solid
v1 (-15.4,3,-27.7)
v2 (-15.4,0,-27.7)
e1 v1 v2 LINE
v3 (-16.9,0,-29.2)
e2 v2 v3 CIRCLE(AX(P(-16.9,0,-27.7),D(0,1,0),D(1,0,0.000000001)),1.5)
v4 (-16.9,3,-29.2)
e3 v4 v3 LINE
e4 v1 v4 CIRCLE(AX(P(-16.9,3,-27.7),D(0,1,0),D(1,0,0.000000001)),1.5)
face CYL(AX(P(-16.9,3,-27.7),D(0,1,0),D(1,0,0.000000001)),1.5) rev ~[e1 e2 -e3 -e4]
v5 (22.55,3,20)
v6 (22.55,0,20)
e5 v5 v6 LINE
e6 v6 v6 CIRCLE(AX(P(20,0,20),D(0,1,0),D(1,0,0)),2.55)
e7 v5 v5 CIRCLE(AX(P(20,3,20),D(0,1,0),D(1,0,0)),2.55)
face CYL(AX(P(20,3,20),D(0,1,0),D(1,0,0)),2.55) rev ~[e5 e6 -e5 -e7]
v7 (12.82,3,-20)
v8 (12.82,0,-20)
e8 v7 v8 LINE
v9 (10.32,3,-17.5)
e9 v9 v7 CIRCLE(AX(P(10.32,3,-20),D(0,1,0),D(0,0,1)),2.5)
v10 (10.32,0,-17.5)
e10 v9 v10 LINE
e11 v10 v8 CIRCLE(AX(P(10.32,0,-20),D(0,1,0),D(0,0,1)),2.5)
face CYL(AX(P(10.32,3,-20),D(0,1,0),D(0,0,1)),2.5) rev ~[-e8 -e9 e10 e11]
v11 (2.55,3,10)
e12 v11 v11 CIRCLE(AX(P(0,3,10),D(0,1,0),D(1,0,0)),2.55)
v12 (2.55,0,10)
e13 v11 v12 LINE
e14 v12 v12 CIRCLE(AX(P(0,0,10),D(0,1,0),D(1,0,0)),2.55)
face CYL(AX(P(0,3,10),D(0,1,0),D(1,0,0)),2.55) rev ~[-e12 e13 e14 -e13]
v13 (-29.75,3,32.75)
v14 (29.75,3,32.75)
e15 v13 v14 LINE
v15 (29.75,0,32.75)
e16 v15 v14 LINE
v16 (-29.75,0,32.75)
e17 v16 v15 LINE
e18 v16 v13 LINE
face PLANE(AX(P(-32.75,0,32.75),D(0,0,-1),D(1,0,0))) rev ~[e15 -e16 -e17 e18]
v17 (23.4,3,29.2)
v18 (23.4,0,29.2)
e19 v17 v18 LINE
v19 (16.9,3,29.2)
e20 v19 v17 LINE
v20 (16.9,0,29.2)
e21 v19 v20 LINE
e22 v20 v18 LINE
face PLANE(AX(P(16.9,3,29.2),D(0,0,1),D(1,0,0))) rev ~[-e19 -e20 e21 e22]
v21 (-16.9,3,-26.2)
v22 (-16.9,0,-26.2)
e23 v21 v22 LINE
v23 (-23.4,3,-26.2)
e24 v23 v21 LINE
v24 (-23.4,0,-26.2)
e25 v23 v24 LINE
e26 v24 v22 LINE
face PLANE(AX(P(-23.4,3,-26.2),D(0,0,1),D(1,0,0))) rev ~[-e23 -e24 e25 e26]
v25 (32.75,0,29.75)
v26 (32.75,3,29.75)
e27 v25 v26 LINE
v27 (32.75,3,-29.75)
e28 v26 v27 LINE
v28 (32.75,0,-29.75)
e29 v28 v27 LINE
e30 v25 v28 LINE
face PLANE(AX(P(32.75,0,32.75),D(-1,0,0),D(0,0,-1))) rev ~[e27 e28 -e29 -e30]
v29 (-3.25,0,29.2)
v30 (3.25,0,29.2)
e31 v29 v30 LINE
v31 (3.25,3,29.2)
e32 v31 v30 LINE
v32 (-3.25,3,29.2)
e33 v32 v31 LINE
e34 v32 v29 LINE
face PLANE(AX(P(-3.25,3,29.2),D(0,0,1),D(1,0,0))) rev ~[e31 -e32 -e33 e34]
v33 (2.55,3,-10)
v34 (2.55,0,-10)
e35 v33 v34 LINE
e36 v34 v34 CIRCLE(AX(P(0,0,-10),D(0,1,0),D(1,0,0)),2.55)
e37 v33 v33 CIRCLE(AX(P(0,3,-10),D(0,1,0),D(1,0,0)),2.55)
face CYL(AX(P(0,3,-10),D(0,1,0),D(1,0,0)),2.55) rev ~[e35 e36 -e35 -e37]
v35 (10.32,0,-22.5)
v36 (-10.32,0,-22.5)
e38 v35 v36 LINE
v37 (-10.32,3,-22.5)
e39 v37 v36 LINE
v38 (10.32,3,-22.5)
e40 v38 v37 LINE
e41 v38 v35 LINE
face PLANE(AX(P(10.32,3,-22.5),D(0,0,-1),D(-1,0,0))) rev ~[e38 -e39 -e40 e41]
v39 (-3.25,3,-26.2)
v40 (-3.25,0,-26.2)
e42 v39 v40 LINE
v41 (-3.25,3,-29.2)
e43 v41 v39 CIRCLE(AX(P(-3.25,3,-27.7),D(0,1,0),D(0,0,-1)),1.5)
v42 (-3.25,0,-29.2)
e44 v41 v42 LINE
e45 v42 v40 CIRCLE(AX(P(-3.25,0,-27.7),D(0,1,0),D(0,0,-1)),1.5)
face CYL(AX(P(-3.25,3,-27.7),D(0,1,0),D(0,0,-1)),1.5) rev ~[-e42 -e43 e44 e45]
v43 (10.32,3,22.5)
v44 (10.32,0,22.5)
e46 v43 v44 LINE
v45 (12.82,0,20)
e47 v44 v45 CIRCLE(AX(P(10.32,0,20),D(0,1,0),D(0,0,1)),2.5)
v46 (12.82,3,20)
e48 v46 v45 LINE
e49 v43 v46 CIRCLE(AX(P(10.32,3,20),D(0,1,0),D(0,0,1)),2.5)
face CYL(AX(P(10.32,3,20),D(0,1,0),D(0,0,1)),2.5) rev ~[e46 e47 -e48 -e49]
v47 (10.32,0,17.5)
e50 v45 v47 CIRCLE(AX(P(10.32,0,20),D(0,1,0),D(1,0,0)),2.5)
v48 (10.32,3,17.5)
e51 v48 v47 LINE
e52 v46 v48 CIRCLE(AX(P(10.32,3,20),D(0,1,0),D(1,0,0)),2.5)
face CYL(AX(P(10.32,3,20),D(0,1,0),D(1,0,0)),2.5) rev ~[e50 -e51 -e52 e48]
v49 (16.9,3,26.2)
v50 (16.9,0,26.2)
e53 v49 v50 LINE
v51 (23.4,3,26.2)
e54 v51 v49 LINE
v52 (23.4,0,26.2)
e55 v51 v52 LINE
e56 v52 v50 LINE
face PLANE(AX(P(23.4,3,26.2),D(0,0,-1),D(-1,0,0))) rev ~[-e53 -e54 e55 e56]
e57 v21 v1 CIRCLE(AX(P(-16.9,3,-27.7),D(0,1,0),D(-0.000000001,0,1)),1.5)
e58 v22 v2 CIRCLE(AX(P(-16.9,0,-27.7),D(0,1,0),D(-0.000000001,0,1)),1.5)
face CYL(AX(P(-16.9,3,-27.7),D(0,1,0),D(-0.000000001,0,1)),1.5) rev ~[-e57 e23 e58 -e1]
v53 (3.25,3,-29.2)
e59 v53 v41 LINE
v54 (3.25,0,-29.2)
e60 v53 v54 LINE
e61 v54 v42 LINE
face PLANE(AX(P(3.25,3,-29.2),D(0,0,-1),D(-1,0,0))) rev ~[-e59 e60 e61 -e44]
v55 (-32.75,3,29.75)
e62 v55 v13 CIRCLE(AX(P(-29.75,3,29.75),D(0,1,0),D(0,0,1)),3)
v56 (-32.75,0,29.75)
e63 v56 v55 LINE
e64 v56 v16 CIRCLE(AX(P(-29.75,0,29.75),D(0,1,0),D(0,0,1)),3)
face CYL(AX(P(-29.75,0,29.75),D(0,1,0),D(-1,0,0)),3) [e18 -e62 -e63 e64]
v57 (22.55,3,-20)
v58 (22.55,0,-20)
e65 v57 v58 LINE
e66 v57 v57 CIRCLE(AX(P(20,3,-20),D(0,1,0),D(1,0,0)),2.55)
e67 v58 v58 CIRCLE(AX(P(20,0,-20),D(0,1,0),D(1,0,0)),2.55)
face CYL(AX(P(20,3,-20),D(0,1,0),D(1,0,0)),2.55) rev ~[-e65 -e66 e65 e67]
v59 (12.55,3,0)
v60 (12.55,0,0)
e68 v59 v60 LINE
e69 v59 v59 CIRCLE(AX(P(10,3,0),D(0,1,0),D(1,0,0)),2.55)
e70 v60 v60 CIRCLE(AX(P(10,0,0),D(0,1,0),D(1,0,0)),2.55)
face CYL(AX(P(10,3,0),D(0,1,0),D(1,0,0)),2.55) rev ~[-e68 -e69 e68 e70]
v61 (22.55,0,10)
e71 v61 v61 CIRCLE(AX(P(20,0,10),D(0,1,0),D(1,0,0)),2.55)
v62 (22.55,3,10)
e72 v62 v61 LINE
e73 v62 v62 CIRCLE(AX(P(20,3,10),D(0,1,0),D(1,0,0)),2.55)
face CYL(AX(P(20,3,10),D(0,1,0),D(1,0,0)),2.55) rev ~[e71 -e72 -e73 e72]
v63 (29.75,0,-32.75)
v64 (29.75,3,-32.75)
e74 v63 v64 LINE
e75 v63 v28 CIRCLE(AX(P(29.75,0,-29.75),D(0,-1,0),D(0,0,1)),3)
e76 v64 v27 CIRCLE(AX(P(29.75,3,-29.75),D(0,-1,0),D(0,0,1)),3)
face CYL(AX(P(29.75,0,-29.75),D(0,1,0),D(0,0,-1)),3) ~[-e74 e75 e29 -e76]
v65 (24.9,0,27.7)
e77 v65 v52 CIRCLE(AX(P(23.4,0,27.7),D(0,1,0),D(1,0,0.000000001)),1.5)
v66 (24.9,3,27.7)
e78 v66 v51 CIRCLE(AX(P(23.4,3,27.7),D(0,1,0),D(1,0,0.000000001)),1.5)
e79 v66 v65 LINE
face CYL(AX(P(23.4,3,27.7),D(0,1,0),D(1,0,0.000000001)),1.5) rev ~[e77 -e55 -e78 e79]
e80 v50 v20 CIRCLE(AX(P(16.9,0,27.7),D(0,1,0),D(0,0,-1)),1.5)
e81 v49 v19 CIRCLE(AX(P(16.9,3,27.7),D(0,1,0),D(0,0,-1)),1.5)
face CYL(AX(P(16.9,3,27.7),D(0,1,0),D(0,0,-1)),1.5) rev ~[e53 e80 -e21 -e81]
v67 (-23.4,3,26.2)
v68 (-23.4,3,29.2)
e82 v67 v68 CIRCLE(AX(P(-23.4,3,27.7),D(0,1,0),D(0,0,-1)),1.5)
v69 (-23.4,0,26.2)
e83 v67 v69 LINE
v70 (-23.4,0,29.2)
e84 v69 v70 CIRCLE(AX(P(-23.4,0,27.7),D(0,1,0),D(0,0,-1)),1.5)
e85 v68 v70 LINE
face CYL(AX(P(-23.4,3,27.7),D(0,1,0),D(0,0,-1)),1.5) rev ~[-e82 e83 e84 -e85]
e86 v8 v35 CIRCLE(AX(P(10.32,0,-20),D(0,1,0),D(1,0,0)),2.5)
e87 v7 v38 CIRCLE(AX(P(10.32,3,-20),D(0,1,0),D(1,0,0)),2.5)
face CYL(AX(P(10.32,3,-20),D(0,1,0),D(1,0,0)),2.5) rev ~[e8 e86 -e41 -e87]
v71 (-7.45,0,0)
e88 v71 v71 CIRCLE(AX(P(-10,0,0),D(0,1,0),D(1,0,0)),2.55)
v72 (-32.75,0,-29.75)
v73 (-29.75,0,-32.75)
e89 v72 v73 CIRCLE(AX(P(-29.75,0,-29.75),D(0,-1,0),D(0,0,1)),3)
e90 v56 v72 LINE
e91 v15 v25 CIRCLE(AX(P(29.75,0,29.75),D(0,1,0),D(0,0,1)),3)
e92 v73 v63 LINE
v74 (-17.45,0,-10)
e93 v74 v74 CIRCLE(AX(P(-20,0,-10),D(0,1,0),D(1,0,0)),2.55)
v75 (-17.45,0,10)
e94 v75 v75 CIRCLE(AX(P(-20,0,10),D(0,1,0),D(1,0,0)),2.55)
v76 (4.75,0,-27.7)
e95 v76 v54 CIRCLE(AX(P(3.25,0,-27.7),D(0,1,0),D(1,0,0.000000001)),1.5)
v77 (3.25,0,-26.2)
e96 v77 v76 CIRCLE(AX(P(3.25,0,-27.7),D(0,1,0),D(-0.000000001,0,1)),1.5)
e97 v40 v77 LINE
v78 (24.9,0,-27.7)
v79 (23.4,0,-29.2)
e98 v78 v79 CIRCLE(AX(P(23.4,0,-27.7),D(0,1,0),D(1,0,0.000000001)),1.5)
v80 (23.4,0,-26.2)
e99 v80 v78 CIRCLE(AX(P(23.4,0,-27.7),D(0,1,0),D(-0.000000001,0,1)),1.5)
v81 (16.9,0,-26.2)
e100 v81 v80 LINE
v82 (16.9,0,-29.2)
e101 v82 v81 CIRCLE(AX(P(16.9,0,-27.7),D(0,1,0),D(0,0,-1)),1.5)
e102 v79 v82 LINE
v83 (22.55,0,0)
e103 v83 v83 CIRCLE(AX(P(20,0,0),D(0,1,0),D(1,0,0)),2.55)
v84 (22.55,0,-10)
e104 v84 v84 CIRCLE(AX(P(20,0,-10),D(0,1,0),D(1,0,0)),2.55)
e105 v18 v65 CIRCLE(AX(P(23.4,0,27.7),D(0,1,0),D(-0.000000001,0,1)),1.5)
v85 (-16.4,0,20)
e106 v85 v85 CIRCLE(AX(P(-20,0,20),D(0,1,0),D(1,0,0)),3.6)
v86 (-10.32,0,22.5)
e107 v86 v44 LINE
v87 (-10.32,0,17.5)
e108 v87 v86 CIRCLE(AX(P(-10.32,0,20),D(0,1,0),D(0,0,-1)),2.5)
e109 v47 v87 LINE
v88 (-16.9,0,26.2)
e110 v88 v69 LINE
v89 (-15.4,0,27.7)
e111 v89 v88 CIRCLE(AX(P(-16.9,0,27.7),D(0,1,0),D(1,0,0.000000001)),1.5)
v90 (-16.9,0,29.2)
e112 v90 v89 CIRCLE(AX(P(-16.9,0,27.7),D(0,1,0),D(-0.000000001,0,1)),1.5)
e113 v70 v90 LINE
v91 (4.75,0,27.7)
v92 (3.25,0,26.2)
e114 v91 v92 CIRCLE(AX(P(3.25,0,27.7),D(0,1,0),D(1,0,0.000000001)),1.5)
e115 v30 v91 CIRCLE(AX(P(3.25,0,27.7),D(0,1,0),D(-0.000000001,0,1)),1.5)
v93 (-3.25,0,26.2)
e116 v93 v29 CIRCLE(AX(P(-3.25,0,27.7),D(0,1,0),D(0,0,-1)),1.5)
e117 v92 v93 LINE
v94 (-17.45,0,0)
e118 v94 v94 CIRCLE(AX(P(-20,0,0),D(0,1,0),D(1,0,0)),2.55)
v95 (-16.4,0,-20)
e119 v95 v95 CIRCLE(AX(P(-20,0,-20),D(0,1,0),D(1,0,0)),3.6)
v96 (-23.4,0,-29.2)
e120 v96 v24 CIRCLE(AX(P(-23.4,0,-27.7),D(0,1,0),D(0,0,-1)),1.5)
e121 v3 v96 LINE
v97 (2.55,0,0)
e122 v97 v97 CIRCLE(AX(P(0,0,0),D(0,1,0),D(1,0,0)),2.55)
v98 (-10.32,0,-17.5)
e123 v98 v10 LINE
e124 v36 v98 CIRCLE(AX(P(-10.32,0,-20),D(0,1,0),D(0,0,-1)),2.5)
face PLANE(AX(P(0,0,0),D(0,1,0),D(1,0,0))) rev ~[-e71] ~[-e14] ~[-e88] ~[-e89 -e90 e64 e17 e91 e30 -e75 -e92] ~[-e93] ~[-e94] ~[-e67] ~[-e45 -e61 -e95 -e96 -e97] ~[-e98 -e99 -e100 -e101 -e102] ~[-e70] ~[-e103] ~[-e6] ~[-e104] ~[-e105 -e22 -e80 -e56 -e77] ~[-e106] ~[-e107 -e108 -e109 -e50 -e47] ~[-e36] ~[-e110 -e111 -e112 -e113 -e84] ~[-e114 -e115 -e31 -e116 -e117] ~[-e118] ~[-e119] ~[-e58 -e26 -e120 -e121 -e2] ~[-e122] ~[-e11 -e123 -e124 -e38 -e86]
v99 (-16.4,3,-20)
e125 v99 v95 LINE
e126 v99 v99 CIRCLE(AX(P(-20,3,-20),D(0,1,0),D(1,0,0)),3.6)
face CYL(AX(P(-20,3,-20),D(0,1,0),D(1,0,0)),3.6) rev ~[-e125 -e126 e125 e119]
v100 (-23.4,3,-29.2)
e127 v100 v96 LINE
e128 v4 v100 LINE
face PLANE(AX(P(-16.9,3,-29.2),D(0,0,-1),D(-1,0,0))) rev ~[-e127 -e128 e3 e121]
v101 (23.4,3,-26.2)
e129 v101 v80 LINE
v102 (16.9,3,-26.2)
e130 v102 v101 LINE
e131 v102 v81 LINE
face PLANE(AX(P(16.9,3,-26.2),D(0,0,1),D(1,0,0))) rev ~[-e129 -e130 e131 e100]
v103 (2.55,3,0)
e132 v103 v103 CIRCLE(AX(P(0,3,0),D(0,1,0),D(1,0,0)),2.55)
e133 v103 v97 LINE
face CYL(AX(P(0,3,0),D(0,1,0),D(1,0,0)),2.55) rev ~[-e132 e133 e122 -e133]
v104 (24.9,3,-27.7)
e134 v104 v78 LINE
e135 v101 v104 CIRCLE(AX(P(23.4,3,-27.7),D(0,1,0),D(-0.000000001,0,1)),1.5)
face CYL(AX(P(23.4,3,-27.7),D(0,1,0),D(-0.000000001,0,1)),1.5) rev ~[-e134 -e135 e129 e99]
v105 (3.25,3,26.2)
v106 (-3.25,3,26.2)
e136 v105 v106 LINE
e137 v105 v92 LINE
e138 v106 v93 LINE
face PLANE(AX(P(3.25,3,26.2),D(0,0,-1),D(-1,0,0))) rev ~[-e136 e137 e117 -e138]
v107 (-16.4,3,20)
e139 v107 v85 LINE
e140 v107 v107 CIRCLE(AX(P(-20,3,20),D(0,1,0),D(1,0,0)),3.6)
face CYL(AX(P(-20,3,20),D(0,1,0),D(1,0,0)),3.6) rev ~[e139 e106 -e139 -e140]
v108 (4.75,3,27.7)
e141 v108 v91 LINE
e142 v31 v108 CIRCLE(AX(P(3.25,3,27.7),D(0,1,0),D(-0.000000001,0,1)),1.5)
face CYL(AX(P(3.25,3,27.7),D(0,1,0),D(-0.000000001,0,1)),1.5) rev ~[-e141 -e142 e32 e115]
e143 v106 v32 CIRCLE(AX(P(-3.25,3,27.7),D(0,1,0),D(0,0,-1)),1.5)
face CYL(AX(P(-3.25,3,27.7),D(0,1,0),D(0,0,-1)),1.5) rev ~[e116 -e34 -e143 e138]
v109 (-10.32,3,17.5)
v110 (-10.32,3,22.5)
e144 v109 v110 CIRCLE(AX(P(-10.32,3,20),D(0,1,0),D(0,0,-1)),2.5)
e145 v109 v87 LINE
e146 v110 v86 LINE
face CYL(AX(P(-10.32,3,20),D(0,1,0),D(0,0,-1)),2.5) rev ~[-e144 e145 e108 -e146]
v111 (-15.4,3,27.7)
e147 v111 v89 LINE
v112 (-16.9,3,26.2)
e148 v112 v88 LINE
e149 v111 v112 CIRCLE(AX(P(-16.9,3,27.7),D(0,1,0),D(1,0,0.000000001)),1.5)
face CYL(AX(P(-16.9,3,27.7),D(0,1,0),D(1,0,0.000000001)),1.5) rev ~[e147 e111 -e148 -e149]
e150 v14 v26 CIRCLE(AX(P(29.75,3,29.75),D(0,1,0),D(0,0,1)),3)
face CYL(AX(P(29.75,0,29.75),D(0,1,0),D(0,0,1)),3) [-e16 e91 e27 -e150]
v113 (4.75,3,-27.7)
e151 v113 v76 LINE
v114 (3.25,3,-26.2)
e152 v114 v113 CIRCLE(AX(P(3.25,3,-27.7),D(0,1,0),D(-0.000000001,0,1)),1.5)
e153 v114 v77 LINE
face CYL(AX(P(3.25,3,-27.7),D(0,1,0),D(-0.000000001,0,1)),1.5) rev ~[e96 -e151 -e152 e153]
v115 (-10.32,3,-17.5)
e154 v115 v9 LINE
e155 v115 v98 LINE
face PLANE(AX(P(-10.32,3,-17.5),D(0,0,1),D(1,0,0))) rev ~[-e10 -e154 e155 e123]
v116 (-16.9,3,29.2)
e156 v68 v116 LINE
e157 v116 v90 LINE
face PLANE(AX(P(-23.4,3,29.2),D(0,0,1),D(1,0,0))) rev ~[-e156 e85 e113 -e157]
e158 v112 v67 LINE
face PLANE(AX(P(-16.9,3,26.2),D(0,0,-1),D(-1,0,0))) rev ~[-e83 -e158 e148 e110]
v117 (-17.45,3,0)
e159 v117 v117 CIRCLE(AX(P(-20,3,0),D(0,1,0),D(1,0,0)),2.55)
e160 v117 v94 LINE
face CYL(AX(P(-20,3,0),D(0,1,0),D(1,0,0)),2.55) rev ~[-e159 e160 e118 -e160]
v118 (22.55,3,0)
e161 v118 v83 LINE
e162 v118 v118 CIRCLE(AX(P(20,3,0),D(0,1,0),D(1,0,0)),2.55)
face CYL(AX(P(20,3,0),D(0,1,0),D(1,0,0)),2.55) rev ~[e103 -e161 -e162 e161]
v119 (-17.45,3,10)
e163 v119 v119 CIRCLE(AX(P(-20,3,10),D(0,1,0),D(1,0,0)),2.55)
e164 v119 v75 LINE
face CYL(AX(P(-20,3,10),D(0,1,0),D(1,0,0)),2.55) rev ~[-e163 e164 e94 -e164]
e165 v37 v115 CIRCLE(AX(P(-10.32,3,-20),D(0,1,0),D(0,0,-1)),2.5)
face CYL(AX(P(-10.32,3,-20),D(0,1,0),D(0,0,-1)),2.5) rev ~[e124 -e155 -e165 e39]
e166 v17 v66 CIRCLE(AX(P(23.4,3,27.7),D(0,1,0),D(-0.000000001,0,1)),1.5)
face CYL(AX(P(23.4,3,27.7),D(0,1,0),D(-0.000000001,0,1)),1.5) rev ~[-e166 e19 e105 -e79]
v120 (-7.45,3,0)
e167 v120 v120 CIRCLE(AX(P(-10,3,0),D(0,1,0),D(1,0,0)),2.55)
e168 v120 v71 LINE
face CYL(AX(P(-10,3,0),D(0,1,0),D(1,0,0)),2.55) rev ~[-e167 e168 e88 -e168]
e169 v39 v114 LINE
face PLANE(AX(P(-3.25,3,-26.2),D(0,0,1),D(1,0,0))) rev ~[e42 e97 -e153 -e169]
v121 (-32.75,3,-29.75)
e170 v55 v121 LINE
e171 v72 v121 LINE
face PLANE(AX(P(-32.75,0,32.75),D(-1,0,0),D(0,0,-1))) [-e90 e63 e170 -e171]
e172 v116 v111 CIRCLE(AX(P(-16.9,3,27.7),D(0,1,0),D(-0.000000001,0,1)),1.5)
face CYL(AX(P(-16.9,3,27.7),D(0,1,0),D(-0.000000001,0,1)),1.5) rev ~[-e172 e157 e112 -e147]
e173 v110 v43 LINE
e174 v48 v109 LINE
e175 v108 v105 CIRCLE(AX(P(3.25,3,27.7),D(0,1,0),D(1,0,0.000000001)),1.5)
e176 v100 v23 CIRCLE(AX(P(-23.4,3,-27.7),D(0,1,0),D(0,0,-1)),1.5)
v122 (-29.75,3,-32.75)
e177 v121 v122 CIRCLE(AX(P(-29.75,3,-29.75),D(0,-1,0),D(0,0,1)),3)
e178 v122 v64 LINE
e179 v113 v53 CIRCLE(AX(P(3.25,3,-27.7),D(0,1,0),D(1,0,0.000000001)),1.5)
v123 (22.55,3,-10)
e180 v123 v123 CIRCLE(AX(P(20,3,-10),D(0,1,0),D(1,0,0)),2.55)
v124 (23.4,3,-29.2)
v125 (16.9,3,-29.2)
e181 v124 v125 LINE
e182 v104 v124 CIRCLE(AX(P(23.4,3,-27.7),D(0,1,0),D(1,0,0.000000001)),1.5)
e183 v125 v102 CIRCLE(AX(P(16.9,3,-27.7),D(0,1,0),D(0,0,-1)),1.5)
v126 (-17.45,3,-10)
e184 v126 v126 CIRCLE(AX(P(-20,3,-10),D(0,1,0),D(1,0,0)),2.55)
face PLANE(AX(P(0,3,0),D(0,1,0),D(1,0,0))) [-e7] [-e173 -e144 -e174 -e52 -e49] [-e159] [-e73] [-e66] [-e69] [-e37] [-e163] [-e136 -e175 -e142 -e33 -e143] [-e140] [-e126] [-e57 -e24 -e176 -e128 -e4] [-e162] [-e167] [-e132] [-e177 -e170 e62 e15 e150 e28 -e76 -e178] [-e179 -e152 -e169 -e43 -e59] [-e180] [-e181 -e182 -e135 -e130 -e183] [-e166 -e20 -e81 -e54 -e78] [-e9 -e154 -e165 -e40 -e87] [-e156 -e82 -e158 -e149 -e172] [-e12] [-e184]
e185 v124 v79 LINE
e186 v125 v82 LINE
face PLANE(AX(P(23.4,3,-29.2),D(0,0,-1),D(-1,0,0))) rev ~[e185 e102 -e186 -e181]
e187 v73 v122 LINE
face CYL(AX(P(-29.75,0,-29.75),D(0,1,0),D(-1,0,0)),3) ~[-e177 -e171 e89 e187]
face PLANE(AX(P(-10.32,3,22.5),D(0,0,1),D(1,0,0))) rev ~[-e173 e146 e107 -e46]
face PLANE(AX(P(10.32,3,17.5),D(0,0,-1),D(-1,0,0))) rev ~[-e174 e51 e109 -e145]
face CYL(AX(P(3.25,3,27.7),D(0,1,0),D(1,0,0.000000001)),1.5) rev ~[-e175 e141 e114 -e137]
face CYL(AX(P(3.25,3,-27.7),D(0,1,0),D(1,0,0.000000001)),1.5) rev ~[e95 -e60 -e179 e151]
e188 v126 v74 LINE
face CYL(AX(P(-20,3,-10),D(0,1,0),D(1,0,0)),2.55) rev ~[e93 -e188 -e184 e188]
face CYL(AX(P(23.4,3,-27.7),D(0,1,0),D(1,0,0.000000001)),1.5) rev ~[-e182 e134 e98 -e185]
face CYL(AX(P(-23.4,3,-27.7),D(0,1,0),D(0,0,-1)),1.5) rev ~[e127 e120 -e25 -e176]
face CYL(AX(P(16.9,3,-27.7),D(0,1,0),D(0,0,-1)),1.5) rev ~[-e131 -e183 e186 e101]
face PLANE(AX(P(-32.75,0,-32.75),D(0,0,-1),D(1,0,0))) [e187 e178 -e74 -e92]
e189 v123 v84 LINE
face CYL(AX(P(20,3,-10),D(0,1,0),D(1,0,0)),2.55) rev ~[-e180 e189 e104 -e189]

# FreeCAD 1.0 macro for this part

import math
import FreeCAD as App
import Part
import Sketcher
from FreeCAD import Vector


def edges_at(feature, points):
    """Names of the edges that pass closest to the given points."""
    edges = feature.Shape.Edges
    near = lambda p: min(range(len(edges)), key=lambda i: edges[i].distToShape(Part.Vertex(*p))[0])
    return sorted({f"Edge{near(p) + 1}" for p in points})

doc = App.newDocument("Part")
params = doc.addObject("Spreadsheet::Sheet", "Params")
for row, (alias, value) in enumerate([
    ("sketch1_width", "65.5 mm"),
    ("pad1_length", "3 mm"),
    ("sketch2_diameter", "7.2 mm"),
    ("sketch2_diameter2", "5.1 mm"),
    ("sketch2_radius", "1.5 mm"),
    ("sketch2_radius2", "2.5 mm"),
    ("sketch2_width", "6.5 mm"),
    ("fillet_radius", "3 mm"),
], start=1):
    params.set(f"A{row}", alias)
    params.set(f"B{row}", "=" + value)
    params.setAlias(f"B{row}", alias)

body = doc.addObject("PartDesign::Body", "Body")

# Sketch on XZ plane
sketch1 = body.newObject("Sketcher::SketchObject", "Sketch")
sketch1.AttachmentSupport = (doc.getObject("XZ_Plane"), [""])
sketch1.MapMode = "FlatFace"
sketch1.addGeometry(Part.LineSegment(Vector(-33, -33, 0), Vector(-33, 33, 0)), False)
sketch1.addGeometry(Part.LineSegment(Vector(-33, 33, 0), Vector(33, 33, 0)), False)
sketch1.addGeometry(Part.LineSegment(Vector(33, 33, 0), Vector(33, -33, 0)), False)
sketch1.addGeometry(Part.LineSegment(Vector(33, -33, 0), Vector(-33, -33, 0)), False)
sketch1.addConstraint(Sketcher.Constraint("Coincident", 0, 2, 1, 1))
sketch1.addConstraint(Sketcher.Constraint("Coincident", 1, 2, 2, 1))
sketch1.addConstraint(Sketcher.Constraint("Coincident", 2, 2, 3, 1))
sketch1.addConstraint(Sketcher.Constraint("Coincident", 3, 2, 0, 1))
sketch1.addConstraint(Sketcher.Constraint("Vertical", 0))
sketch1.addConstraint(Sketcher.Constraint("Horizontal", 1))
sketch1.addConstraint(Sketcher.Constraint("Vertical", 2))
sketch1.addConstraint(Sketcher.Constraint("Horizontal", 3))
sketch1.addConstraint(Sketcher.Constraint("Symmetric", 0, 2, 2, 2, -1, 1))
sketch1.addConstraint(Sketcher.Constraint("Equal", 3, 0))
sketch1.addConstraint(Sketcher.Constraint("DistanceX", 1, 1, 1, 2, 65.5))
sketch1.setExpression("Constraints[10]", "Params.sketch1_width")
pad1 = body.newObject("PartDesign::Pad", "Pad")
pad1.Profile = sketch1
pad1.setExpression("Length", "Params.pad1_length")
pad1.Reversed = True

# Sketch on XZ plane
sketch2 = body.newObject("Sketcher::SketchObject", "Sketch001")
sketch2.AttachmentSupport = (doc.getObject("XZ_Plane"), [""])
sketch2.MapMode = "FlatFace"
sketch2.AttachmentOffset = App.Placement(Vector(0, 0, -3), App.Rotation())
sketch2.addGeometry(Part.LineSegment(Vector(-23.4, -26.2, 0), Vector(-16.9, -26.2, 0)), False)
sketch2.addGeometry(Part.ArcOfCircle(Part.Circle(Vector(-16.9, -27.7, 0), Vector(0, 0, 1), 1.5), math.radians(0), math.radians(90)), False)
sketch2.addGeometry(Part.ArcOfCircle(Part.Circle(Vector(-16.9, -27.7, 0), Vector(0, 0, 1), 1.5), math.radians(-90), math.radians(0)), False)
sketch2.addGeometry(Part.LineSegment(Vector(-16.9, -29.2, 0), Vector(-23.4, -29.2, 0)), False)
sketch2.addGeometry(Part.ArcOfCircle(Part.Circle(Vector(-23.4, -27.7, 0), Vector(0, 0, 1), 1.5), math.radians(90), math.radians(270)), False)
sketch2.addGeometry(Part.LineSegment(Vector(-3.2, -26.2, 0), Vector(3.2, -26.2, 0)), False)
sketch2.addGeometry(Part.ArcOfCircle(Part.Circle(Vector(3.3, -27.7, 0), Vector(0, 0, 1), 1.5), math.radians(0), math.radians(90)), False)
sketch2.addGeometry(Part.ArcOfCircle(Part.Circle(Vector(3.3, -27.7, 0), Vector(0, 0, 1), 1.5), math.radians(-90), math.radians(0)), False)
sketch2.addGeometry(Part.LineSegment(Vector(3.2, -29.2, 0), Vector(-3.2, -29.2, 0)), False)
sketch2.addGeometry(Part.ArcOfCircle(Part.Circle(Vector(-3.2, -27.7, 0), Vector(0, 0, 1), 1.5), math.radians(90), math.radians(270)), False)
sketch2.addGeometry(Part.LineSegment(Vector(16.9, -26.2, 0), Vector(23.4, -26.2, 0)), False)
sketch2.addGeometry(Part.ArcOfCircle(Part.Circle(Vector(23.4, -27.7, 0), Vector(0, 0, 1), 1.5), math.radians(0), math.radians(90)), False)
sketch2.addGeometry(Part.ArcOfCircle(Part.Circle(Vector(23.4, -27.7, 0), Vector(0, 0, 1), 1.5), math.radians(-90), math.radians(0)), False)
sketch2.addGeometry(Part.LineSegment(Vector(23.4, -29.2, 0), Vector(16.9, -29.2, 0)), False)
sketch2.addGeometry(Part.ArcOfCircle(Part.Circle(Vector(16.9, -27.7, 0), Vector(0, 0, 1), 1.5), math.radians(90), math.radians(270)), False)
sketch2.addGeometry(Part.Circle(Vector(-20, -20, 0), Vector(0, 0, 1), 3.6), False)
sketch2.addGeometry(Part.LineSegment(Vector(-10.3, -17.5, 0), Vector(10.3, -17.5, 0)), False)
sketch2.addGeometry(Part.ArcOfCircle(Part.Circle(Vector(10.3, -20, 0), Vector(0, 0, 1), 2.5), math.radians(0), math.radians(90)), False)
sketch2.addGeometry(Part.ArcOfCircle(Part.Circle(Vector(10.3, -20, 0), Vector(0, 0, 1), 2.5), math.radians(-90), math.radians(0)), False)
sketch2.addGeometry(Part.LineSegment(Vector(10.3, -22.5, 0), Vector(-10.3, -22.5, 0)), False)
sketch2.addGeometry(Part.ArcOfCircle(Part.Circle(Vector(-10.3, -20, 0), Vector(0, 0, 1), 2.5), math.radians(90), math.radians(270)), False)
sketch2.addGeometry(Part.Circle(Vector(20, -20, 0), Vector(0, 0, 1), 2.5), False)
sketch2.addGeometry(Part.Circle(Vector(-20, -10, 0), Vector(0, 0, 1), 2.5), False)
sketch2.addGeometry(Part.Circle(Vector(0, -10, 0), Vector(0, 0, 1), 2.5), False)
sketch2.addGeometry(Part.Circle(Vector(20, -10, 0), Vector(0, 0, 1), 2.5), False)
sketch2.addGeometry(Part.Circle(Vector(-20, 0, 0), Vector(0, 0, 1), 2.5), False)
sketch2.addGeometry(Part.Circle(Vector(-10, 0, 0), Vector(0, 0, 1), 2.5), False)
sketch2.addGeometry(Part.Circle(Vector(0, 0, 0), Vector(0, 0, 1), 2.5), False)
sketch2.addGeometry(Part.Circle(Vector(10, 0, 0), Vector(0, 0, 1), 2.5), False)
sketch2.addGeometry(Part.Circle(Vector(20, 0, 0), Vector(0, 0, 1), 2.5), False)
sketch2.addGeometry(Part.Circle(Vector(-20, 10, 0), Vector(0, 0, 1), 2.5), False)
sketch2.addGeometry(Part.Circle(Vector(0, 10, 0), Vector(0, 0, 1), 2.5), False)
sketch2.addGeometry(Part.Circle(Vector(20, 10, 0), Vector(0, 0, 1), 2.5), False)
sketch2.addGeometry(Part.Circle(Vector(-20, 20, 0), Vector(0, 0, 1), 3.6), False)
sketch2.addGeometry(Part.LineSegment(Vector(-10.3, 22.5, 0), Vector(10.3, 22.5, 0)), False)
sketch2.addGeometry(Part.ArcOfCircle(Part.Circle(Vector(10.3, 20, 0), Vector(0, 0, 1), 2.5), math.radians(0), math.radians(90)), False)
sketch2.addGeometry(Part.ArcOfCircle(Part.Circle(Vector(10.3, 20, 0), Vector(0, 0, 1), 2.5), math.radians(-90), math.radians(0)), False)
sketch2.addGeometry(Part.LineSegment(Vector(10.3, 17.5, 0), Vector(-10.3, 17.5, 0)), False)
sketch2.addGeometry(Part.ArcOfCircle(Part.Circle(Vector(-10.3, 20, 0), Vector(0, 0, 1), 2.5), math.radians(90), math.radians(270)), False)
sketch2.addGeometry(Part.Circle(Vector(20, 20, 0), Vector(0, 0, 1), 2.5), False)
sketch2.addGeometry(Part.LineSegment(Vector(-23.4, 29.2, 0), Vector(-16.9, 29.2, 0)), False)
sketch2.addGeometry(Part.ArcOfCircle(Part.Circle(Vector(-16.9, 27.7, 0), Vector(0, 0, 1), 1.5), math.radians(0), math.radians(90)), False)
sketch2.addGeometry(Part.ArcOfCircle(Part.Circle(Vector(-16.9, 27.7, 0), Vector(0, 0, 1), 1.5), math.radians(-90), math.radians(0)), False)
sketch2.addGeometry(Part.LineSegment(Vector(-16.9, 26.2, 0), Vector(-23.4, 26.2, 0)), False)
sketch2.addGeometry(Part.ArcOfCircle(Part.Circle(Vector(-23.4, 27.7, 0), Vector(0, 0, 1), 1.5), math.radians(90), math.radians(270)), False)
sketch2.addGeometry(Part.LineSegment(Vector(-3.2, 29.2, 0), Vector(3.2, 29.2, 0)), False)
sketch2.addGeometry(Part.ArcOfCircle(Part.Circle(Vector(3.3, 27.7, 0), Vector(0, 0, 1), 1.5), math.radians(0), math.radians(90)), False)
sketch2.addGeometry(Part.ArcOfCircle(Part.Circle(Vector(3.3, 27.7, 0), Vector(0, 0, 1), 1.5), math.radians(-90), math.radians(0)), False)
sketch2.addGeometry(Part.LineSegment(Vector(3.2, 26.2, 0), Vector(-3.2, 26.2, 0)), False)
sketch2.addGeometry(Part.ArcOfCircle(Part.Circle(Vector(-3.2, 27.7, 0), Vector(0, 0, 1), 1.5), math.radians(90), math.radians(270)), False)
sketch2.addGeometry(Part.LineSegment(Vector(16.9, 29.2, 0), Vector(23.4, 29.2, 0)), False)
sketch2.addGeometry(Part.ArcOfCircle(Part.Circle(Vector(23.4, 27.7, 0), Vector(0, 0, 1), 1.5), math.radians(0), math.radians(90)), False)
sketch2.addGeometry(Part.ArcOfCircle(Part.Circle(Vector(23.4, 27.7, 0), Vector(0, 0, 1), 1.5), math.radians(-90), math.radians(0)), False)
sketch2.addGeometry(Part.LineSegment(Vector(23.4, 26.2, 0), Vector(16.9, 26.2, 0)), False)
sketch2.addGeometry(Part.ArcOfCircle(Part.Circle(Vector(16.9, 27.7, 0), Vector(0, 0, 1), 1.5), math.radians(90), math.radians(270)), False)
sketch2.addConstraint(Sketcher.Constraint("Tangent", 0, 2, 1, 2))
sketch2.addConstraint(Sketcher.Constraint("Tangent", 1, 1, 2, 2))
sketch2.addConstraint(Sketcher.Constraint("Tangent", 2, 1, 3, 1))
sketch2.addConstraint(Sketcher.Constraint("Tangent", 3, 2, 4, 2))
sketch2.addConstraint(Sketcher.Constraint("Tangent", 4, 1, 0, 1))
sketch2.addConstraint(Sketcher.Constraint("Tangent", 5, 2, 6, 2))
sketch2.addConstraint(Sketcher.Constraint("Tangent", 6, 1, 7, 2))
sketch2.addConstraint(Sketcher.Constraint("Tangent", 7, 1, 8, 1))
sketch2.addConstraint(Sketcher.Constraint("Tangent", 8, 2, 9, 2))
sketch2.addConstraint(Sketcher.Constraint("Tangent", 9, 1, 5, 1))
sketch2.addConstraint(Sketcher.Constraint("Tangent", 10, 2, 11, 2))
sketch2.addConstraint(Sketcher.Constraint("Tangent", 11, 1, 12, 2))
sketch2.addConstraint(Sketcher.Constraint("Tangent", 12, 1, 13, 1))
sketch2.addConstraint(Sketcher.Constraint("Tangent", 13, 2, 14, 2))
sketch2.addConstraint(Sketcher.Constraint("Tangent", 14, 1, 10, 1))
sketch2.addConstraint(Sketcher.Constraint("Tangent", 16, 2, 17, 2))
sketch2.addConstraint(Sketcher.Constraint("Tangent", 17, 1, 18, 2))
sketch2.addConstraint(Sketcher.Constraint("Tangent", 18, 1, 19, 1))
sketch2.addConstraint(Sketcher.Constraint("Tangent", 19, 2, 20, 2))
sketch2.addConstraint(Sketcher.Constraint("Tangent", 20, 1, 16, 1))
sketch2.addConstraint(Sketcher.Constraint("Tangent", 34, 2, 35, 2))
sketch2.addConstraint(Sketcher.Constraint("Tangent", 35, 1, 36, 2))
sketch2.addConstraint(Sketcher.Constraint("Tangent", 36, 1, 37, 1))
sketch2.addConstraint(Sketcher.Constraint("Tangent", 37, 2, 38, 2))
sketch2.addConstraint(Sketcher.Constraint("Tangent", 38, 1, 34, 1))
sketch2.addConstraint(Sketcher.Constraint("Tangent", 40, 2, 41, 2))
sketch2.addConstraint(Sketcher.Constraint("Tangent", 41, 1, 42, 2))
sketch2.addConstraint(Sketcher.Constraint("Tangent", 42, 1, 43, 1))
sketch2.addConstraint(Sketcher.Constraint("Tangent", 43, 2, 44, 2))
sketch2.addConstraint(Sketcher.Constraint("Tangent", 44, 1, 40, 1))
sketch2.addConstraint(Sketcher.Constraint("Tangent", 45, 2, 46, 2))
sketch2.addConstraint(Sketcher.Constraint("Tangent", 46, 1, 47, 2))
sketch2.addConstraint(Sketcher.Constraint("Tangent", 47, 1, 48, 1))
sketch2.addConstraint(Sketcher.Constraint("Tangent", 48, 2, 49, 2))
sketch2.addConstraint(Sketcher.Constraint("Tangent", 49, 1, 45, 1))
sketch2.addConstraint(Sketcher.Constraint("Tangent", 50, 2, 51, 2))
sketch2.addConstraint(Sketcher.Constraint("Tangent", 51, 1, 52, 2))
sketch2.addConstraint(Sketcher.Constraint("Tangent", 52, 1, 53, 1))
sketch2.addConstraint(Sketcher.Constraint("Tangent", 53, 2, 54, 2))
sketch2.addConstraint(Sketcher.Constraint("Tangent", 54, 1, 50, 1))
sketch2.addConstraint(Sketcher.Constraint("Horizontal", 0))
sketch2.addConstraint(Sketcher.Constraint("Horizontal", 3))
sketch2.addConstraint(Sketcher.Constraint("Horizontal", 5))
sketch2.addConstraint(Sketcher.Constraint("Horizontal", 8))
sketch2.addConstraint(Sketcher.Constraint("Horizontal", 10))
sketch2.addConstraint(Sketcher.Constraint("Horizontal", 13))
sketch2.addConstraint(Sketcher.Constraint("Horizontal", 16))
sketch2.addConstraint(Sketcher.Constraint("Horizontal", 19))
sketch2.addConstraint(Sketcher.Constraint("Horizontal", 34))
sketch2.addConstraint(Sketcher.Constraint("Horizontal", 37))
sketch2.addConstraint(Sketcher.Constraint("Horizontal", 40))
sketch2.addConstraint(Sketcher.Constraint("Horizontal", 43))
sketch2.addConstraint(Sketcher.Constraint("Horizontal", 45))
sketch2.addConstraint(Sketcher.Constraint("Horizontal", 48))
sketch2.addConstraint(Sketcher.Constraint("Horizontal", 50))
sketch2.addConstraint(Sketcher.Constraint("Horizontal", 53))
sketch2.addConstraint(Sketcher.Constraint("Coincident", 27, 3, -1, 1))
sketch2.addConstraint(Sketcher.Constraint("Equal", 1, 2))
sketch2.addConstraint(Sketcher.Constraint("Equal", 4, 6))
sketch2.addConstraint(Sketcher.Constraint("Equal", 6, 7))
sketch2.addConstraint(Sketcher.Constraint("Equal", 9, 11))
sketch2.addConstraint(Sketcher.Constraint("Equal", 11, 12))
sketch2.addConstraint(Sketcher.Constraint("Equal", 17, 18))
sketch2.addConstraint(Sketcher.Constraint("Equal", 21, 22))
sketch2.addConstraint(Sketcher.Constraint("Equal", 22, 23))
sketch2.addConstraint(Sketcher.Constraint("Equal", 23, 24))
sketch2.addConstraint(Sketcher.Constraint("Equal", 24, 25))
sketch2.addConstraint(Sketcher.Constraint("Equal", 25, 26))
sketch2.addConstraint(Sketcher.Constraint("Equal", 26, 27))
sketch2.addConstraint(Sketcher.Constraint("Equal", 27, 28))
sketch2.addConstraint(Sketcher.Constraint("Equal", 28, 29))
sketch2.addConstraint(Sketcher.Constraint("Equal", 29, 30))
sketch2.addConstraint(Sketcher.Constraint("Equal", 30, 31))
sketch2.addConstraint(Sketcher.Constraint("Equal", 31, 32))
sketch2.addConstraint(Sketcher.Constraint("Equal", 15, 33))
sketch2.addConstraint(Sketcher.Constraint("Equal", 20, 35))
sketch2.addConstraint(Sketcher.Constraint("Equal", 35, 36))
sketch2.addConstraint(Sketcher.Constraint("Equal", 32, 39))
sketch2.addConstraint(Sketcher.Constraint("Equal", 14, 41))
sketch2.addConstraint(Sketcher.Constraint("Equal", 41, 42))
sketch2.addConstraint(Sketcher.Constraint("Equal", 44, 46))
sketch2.addConstraint(Sketcher.Constraint("Equal", 46, 47))
sketch2.addConstraint(Sketcher.Constraint("Equal", 49, 51))
sketch2.addConstraint(Sketcher.Constraint("Equal", 51, 52))
sketch2.addConstraint(Sketcher.Constraint("Symmetric", 26, 3, 28, 3, -1, 1))
sketch2.addConstraint(Sketcher.Constraint("Symmetric", 25, 3, 29, 3, -1, 1))
sketch2.addConstraint(Sketcher.Constraint("Symmetric", 24, 3, 30, 3, -1, 1))
sketch2.addConstraint(Sketcher.Constraint("Symmetric", 23, 3, 31, 3, -1, 1))
sketch2.addConstraint(Sketcher.Constraint("Symmetric", 22, 3, 32, 3, -1, 1))
sketch2.addConstraint(Sketcher.Constraint("Symmetric", 21, 3, 33, 3, -1, 1))
sketch2.addConstraint(Sketcher.Constraint("Symmetric", 20, 3, 35, 3, -1, 1))
sketch2.addConstraint(Sketcher.Constraint("Symmetric", 15, 3, 39, 3, -1, 1))
sketch2.addConstraint(Sketcher.Constraint("Symmetric", 14, 3, 41, 3, -1, 1))
sketch2.addConstraint(Sketcher.Constraint("Symmetric", 9, 3, 46, 3, -1, 1))
sketch2.addConstraint(Sketcher.Constraint("Symmetric", 4, 3, 51, 3, -1, 1))
sketch2.addConstraint(Sketcher.Constraint("Symmetric", 4, 3, 11, 3, -2))
sketch2.addConstraint(Sketcher.Constraint("Symmetric", 15, 3, 21, 3, -2))
sketch2.addConstraint(Sketcher.Constraint("Symmetric", 22, 3, 24, 3, -2))
sketch2.addConstraint(Sketcher.Constraint("Symmetric", 17, 1, 35, 1, -1))
sketch2.addConstraint(Sketcher.Constraint("Symmetric", 1, 1, 41, 1, -1))
sketch2.addConstraint(Sketcher.Constraint("Symmetric", 6, 1, 46, 1, -1))
sketch2.addConstraint(Sketcher.Constraint("PointOnObject", 23, 3, -2))
sketch2.addConstraint(Sketcher.Constraint("PointOnObject", 25, 3, -1))
sketch2.addConstraint(Sketcher.Constraint("PointOnObject", 26, 3, -1))
sketch2.addConstraint(Sketcher.Constraint("Horizontal", 4, 3, 6, 3))
sketch2.addConstraint(Sketcher.Constraint("Horizontal", 15, 3, 17, 3))
sketch2.addConstraint(Sketcher.Constraint("Horizontal", 22, 3, 23, 3))
sketch2.addConstraint(Sketcher.Constraint("Horizontal", 14, 3, 1, 1))
sketch2.addConstraint(Sketcher.Constraint("Horizontal", 1, 1, 6, 1))
sketch2.addConstraint(Sketcher.Constraint("Horizontal", 6, 1, 11, 1))
sketch2.addConstraint(Sketcher.Constraint("Horizontal", 21, 3, 17, 1))
sketch2.addConstraint(Sketcher.Constraint("Horizontal", 46, 1, 51, 1))
sketch2.addConstraint(Sketcher.Constraint("Vertical", 15, 3, 22, 3))
sketch2.addConstraint(Sketcher.Constraint("Vertical", 22, 3, 25, 3))
sketch2.addConstraint(Sketcher.Constraint("Vertical", 20, 3, 38, 3))
sketch2.addConstraint(Sketcher.Constraint("Vertical", 4, 3, 44, 3))
sketch2.addConstraint(Sketcher.Constraint("Vertical", 9, 3, 49, 3))
sketch2.addConstraint(Sketcher.Constraint("Vertical", 14, 3, 54, 3))
sketch2.addConstraint(Sketcher.Constraint("Equal", 3, 5))
sketch2.addConstraint(Sketcher.Constraint("Diameter", 15, 7.2))
sketch2.addConstraint(Sketcher.Constraint("Diameter", 21, 5.1))
sketch2.addConstraint(Sketcher.Constraint("Radius", 1, 1.5))
sketch2.addConstraint(Sketcher.Constraint("Radius", 17, 2.5))
sketch2.addConstraint(Sketcher.Constraint("DistanceX", 0, 1, 0, 2, 6.5))
sketch2.addConstraint(Sketcher.Constraint("DistanceX", 15, 3, -1, 1, 20.0))
sketch2.addConstraint(Sketcher.Constraint("DistanceY", 15, 3, -1, 1, 20.0))
sketch2.addConstraint(Sketcher.Constraint("DistanceY", 22, 3, -1, 1, 10.0))
sketch2.addConstraint(Sketcher.Constraint("DistanceX", 26, 3, -1, 1, 10.0))
sketch2.addConstraint(Sketcher.Constraint("DistanceX", 16, 1, 16, 2, 20.64))
sketch2.addConstraint(Sketcher.Constraint("DistanceX", 1, 3, -1, 1, 16.9))
sketch2.addConstraint(Sketcher.Constraint("DistanceY", 1, 3, -1, 1, 27.7))
sketch2.setExpression("Constraints[119]", "Params.sketch2_diameter")
sketch2.setExpression("Constraints[120]", "Params.sketch2_diameter2")
sketch2.setExpression("Constraints[121]", "Params.sketch2_radius")
sketch2.setExpression("Constraints[122]", "Params.sketch2_radius2")
sketch2.setExpression("Constraints[123]", "Params.sketch2_width")
pocket1 = body.newObject("PartDesign::Pocket", "Pocket")
pocket1.Profile = sketch2
pocket1.Type = "ThroughAll"
pocket1.Reversed = True
doc.recompute()

fillet = body.newObject("PartDesign::Fillet", "Fillet")
fillet.Base = (pocket1, edges_at(pocket1, [
    (-32.75, 1.5, -32.75),
    (32.75, 1.5, -32.75),
    (32.75, 1.5, 32.75),
    (-32.75, 1.5, 32.75),
]))
fillet.setExpression("Radius", "Params.fillet_radius")

doc.recompute()
